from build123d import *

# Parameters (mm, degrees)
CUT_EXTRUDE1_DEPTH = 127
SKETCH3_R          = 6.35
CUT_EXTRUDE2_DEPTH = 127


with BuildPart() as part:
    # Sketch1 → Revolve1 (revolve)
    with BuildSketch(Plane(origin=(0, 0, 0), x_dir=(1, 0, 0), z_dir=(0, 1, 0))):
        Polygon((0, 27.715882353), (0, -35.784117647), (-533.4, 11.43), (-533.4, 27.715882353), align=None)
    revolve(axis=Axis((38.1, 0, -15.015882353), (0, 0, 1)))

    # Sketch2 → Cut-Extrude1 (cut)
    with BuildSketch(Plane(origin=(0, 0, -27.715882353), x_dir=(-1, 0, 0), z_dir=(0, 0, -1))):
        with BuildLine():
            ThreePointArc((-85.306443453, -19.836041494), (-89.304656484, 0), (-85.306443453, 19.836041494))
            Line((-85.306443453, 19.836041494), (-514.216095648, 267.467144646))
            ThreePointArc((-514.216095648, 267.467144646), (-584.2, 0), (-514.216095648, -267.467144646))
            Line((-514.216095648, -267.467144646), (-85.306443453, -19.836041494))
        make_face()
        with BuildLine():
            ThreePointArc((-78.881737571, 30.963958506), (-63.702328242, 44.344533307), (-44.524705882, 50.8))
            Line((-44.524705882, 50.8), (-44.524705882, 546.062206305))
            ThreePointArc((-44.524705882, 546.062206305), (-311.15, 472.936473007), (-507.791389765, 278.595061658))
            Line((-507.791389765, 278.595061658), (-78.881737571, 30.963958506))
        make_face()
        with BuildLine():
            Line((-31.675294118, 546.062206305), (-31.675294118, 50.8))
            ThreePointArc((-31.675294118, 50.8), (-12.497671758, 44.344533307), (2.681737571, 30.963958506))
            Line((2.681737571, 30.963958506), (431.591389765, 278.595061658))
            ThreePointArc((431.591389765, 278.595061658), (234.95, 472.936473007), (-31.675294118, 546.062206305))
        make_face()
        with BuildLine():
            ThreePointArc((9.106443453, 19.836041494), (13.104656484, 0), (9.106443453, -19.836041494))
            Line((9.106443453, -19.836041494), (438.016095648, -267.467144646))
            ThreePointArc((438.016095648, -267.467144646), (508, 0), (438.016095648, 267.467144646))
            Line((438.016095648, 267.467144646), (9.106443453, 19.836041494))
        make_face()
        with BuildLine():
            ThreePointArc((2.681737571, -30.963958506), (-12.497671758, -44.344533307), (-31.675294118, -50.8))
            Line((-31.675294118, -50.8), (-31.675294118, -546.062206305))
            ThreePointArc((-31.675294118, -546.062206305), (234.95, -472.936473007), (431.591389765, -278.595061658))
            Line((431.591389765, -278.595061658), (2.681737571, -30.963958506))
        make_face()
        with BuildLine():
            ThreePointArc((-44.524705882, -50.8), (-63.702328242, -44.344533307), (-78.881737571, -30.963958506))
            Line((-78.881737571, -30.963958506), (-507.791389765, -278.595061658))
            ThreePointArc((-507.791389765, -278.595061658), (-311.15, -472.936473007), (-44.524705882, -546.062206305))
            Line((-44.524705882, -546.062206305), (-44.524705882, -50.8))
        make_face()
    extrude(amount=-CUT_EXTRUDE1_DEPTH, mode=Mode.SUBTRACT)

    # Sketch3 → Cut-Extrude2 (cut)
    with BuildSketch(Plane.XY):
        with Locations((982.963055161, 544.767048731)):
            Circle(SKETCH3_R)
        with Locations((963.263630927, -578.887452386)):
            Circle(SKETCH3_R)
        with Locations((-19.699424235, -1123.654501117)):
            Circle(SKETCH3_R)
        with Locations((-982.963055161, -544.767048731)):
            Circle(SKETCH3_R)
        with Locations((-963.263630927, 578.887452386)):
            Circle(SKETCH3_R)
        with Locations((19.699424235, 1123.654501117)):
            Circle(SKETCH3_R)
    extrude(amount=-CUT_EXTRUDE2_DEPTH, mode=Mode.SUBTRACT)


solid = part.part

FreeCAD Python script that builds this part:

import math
import FreeCAD as App
import Part
import Sketcher

V = App.Vector
Q = App.Units.Quantity


def add_polygon(sketch, points):
    """Adds a closed chain of lines whose ends are joined by coincident constraints."""
    first, n = sketch.GeometryCount, len(points)
    for a, b in zip(points, points[1:] + points[:1]):
        sketch.addGeometry(Part.LineSegment(App.Vector(*a, 0), App.Vector(*b, 0)), False)
    for i in range(n):
        sketch.addConstraint(Sketcher.Constraint("Coincident", first + i, 2, first + (i + 1) % n, 1))

doc = App.newDocument("Part")
body = doc.addObject("PartDesign::Body", "Body")

sketch1 = body.newObject("Sketcher::SketchObject", "Sketch")
sketch1.AttachmentSupport = (doc.getObject("XZ_Plane"), [""])
sketch1.MapMode = "FlatFace"
add_polygon(sketch1, [(0, 36), (0, -28), (-533, -28), (-533, -11)])
sketch1.addGeometry(Part.LineSegment(V(38, -28, 0), V(38, 36, 0)), True)
sketch1.addConstraint([
    Sketcher.Constraint("Vertical", 0),
    Sketcher.Constraint("Horizontal", 1),
    Sketcher.Constraint("Vertical", 2),
    Sketcher.Constraint("Vertical", 4),
    Sketcher.Constraint("PointOnObject", 0, 2, -2),
    Sketcher.Constraint("Horizontal", 1, 2, 4, 1),
    Sketcher.Constraint("Horizontal", 3, 2, 4, 2),
    Sketcher.Constraint("DistanceX", 1, 2, 1, 1, Q("21 in")),
    Sketcher.Constraint("DistanceY", 0, 2, 0, 1, Q("2.5 in")),
    Sketcher.Constraint("DistanceX", -1, 1, 4, 1, Q("1.5 in")),
    Sketcher.Constraint("DistanceY", 2, 2, -1, 1, Q("0.45 in")),
    Sketcher.Constraint("Distance", 3, 535.485511),
])
revolution = body.newObject("PartDesign::Revolution", "Revolution")
revolution.Profile = sketch1
revolution.ReferenceAxis = (sketch1, ["Axis0"])
revolution.Angle = 360

sketch2 = body.newObject("Sketcher::SketchObject", "Sketch001")
sketch2.AttachmentSupport = (doc.getObject("XY_Plane"), [""])
sketch2.MapMode = "FlatFace"
sketch2.AttachmentOffset = App.Placement(V(0, 0, -27.715882), App.Rotation())
sketch2.addGeometry([
    Part.ArcOfCircle(Part.Circle(V(38, 0, 0), V(0, 0, 1), 51), math.radians(-23), math.radians(23)),
    Part.LineSegment(V(85, 20, 0), V(514, 267, 0)),
    Part.ArcOfCircle(Part.Circle(V(38, 0, 0), V(0, 0, 1), 546), math.radians(-29), math.radians(29)),
    Part.LineSegment(V(514, -267, 0), V(85, -20, 0)),
    Part.ArcOfCircle(Part.Circle(V(38, 0, 0), V(0, 0, 1), 51), math.radians(37), math.radians(83)),
    Part.LineSegment(V(45, 51, 0), V(45, 546, 0)),
    Part.ArcOfCircle(Part.Circle(V(38, 0, 0), V(0, 0, 1), 546), math.radians(31), math.radians(89)),
    Part.LineSegment(V(508, 279, 0), V(79, 31, 0)),
    Part.LineSegment(V(32, 546, 0), V(32, 51, 0)),
    Part.ArcOfCircle(Part.Circle(V(38, 0, 0), V(0, 0, 1), 51), math.radians(97), math.radians(143)),
    Part.LineSegment(V(-3, 31, 0), V(-432, 279, 0)),
    Part.ArcOfCircle(Part.Circle(V(38, 0, 0), V(0, 0, 1), 546), math.radians(91), math.radians(149)),
    Part.ArcOfCircle(Part.Circle(V(38, 0, 0), V(0, 0, 1), 51), math.radians(157), math.radians(203)),
    Part.LineSegment(V(-9, -20, 0), V(-438, -267, 0)),
    Part.ArcOfCircle(Part.Circle(V(38, 0, 0), V(0, 0, 1), 546), math.radians(151), math.radians(209)),
    Part.LineSegment(V(-438, 267, 0), V(-9, 20, 0)),
    Part.ArcOfCircle(Part.Circle(V(38, 0, 0), V(0, 0, 1), 51), math.radians(-143), math.radians(-97)),
    Part.LineSegment(V(32, -51, 0), V(32, -546, 0)),
    Part.ArcOfCircle(Part.Circle(V(38, 0, 0), V(0, 0, 1), 546), math.radians(-149), math.radians(-91)),
    Part.LineSegment(V(-432, -279, 0), V(-3, -31, 0)),
    Part.ArcOfCircle(Part.Circle(V(38, 0, 0), V(0, 0, 1), 51), math.radians(-83), math.radians(-37)),
    Part.LineSegment(V(79, -31, 0), V(508, -279, 0)),
    Part.ArcOfCircle(Part.Circle(V(38, 0, 0), V(0, 0, 1), 546), math.radians(-89), math.radians(-31)),
    Part.LineSegment(V(45, -546, 0), V(45, -51, 0)),
], False)
sketch2.addConstraint([
    Sketcher.Constraint("Coincident", 0, 2, 1, 1),
    Sketcher.Constraint("Coincident", 1, 2, 2, 2),
    Sketcher.Constraint("Coincident", 2, 1, 3, 1),
    Sketcher.Constraint("Coincident", 3, 2, 0, 1),
    Sketcher.Constraint("Coincident", 4, 2, 5, 1),
    Sketcher.Constraint("Coincident", 5, 2, 6, 2),
    Sketcher.Constraint("Coincident", 6, 1, 7, 1),
    Sketcher.Constraint("Coincident", 7, 2, 4, 1),
    Sketcher.Constraint("Coincident", 8, 2, 9, 1),
    Sketcher.Constraint("Coincident", 9, 2, 10, 1),
    Sketcher.Constraint("Coincident", 10, 2, 11, 2),
    Sketcher.Constraint("Coincident", 11, 1, 8, 1),
    Sketcher.Constraint("Coincident", 12, 2, 13, 1),
    Sketcher.Constraint("Coincident", 13, 2, 14, 2),
    Sketcher.Constraint("Coincident", 14, 1, 15, 1),
    Sketcher.Constraint("Coincident", 15, 2, 12, 1),
    Sketcher.Constraint("Coincident", 16, 2, 17, 1),
    Sketcher.Constraint("Coincident", 17, 2, 18, 2),
    Sketcher.Constraint("Coincident", 18, 1, 19, 1),
    Sketcher.Constraint("Coincident", 19, 2, 16, 1),
    Sketcher.Constraint("Coincident", 20, 2, 21, 1),
    Sketcher.Constraint("Coincident", 21, 2, 22, 2),
    Sketcher.Constraint("Coincident", 22, 1, 23, 1),
    Sketcher.Constraint("Coincident", 23, 2, 20, 1),
    Sketcher.Constraint("Vertical", 5),
    Sketcher.Constraint("Vertical", 8),
    Sketcher.Constraint("Vertical", 17),
    Sketcher.Constraint("Vertical", 23),
    Sketcher.Constraint("Coincident", 2, 3, 0, 3),
    Sketcher.Constraint("Coincident", 4, 3, 0, 3),
    Sketcher.Constraint("Coincident", 6, 3, 0, 3),
    Sketcher.Constraint("Coincident", 9, 3, 0, 3),
    Sketcher.Constraint("Coincident", 11, 3, 0, 3),
    Sketcher.Constraint("Coincident", 12, 3, 0, 3),
    Sketcher.Constraint("Coincident", 14, 3, 0, 3),
    Sketcher.Constraint("Coincident", 16, 3, 0, 3),
    Sketcher.Constraint("Coincident", 18, 3, 0, 3),
    Sketcher.Constraint("Coincident", 20, 3, 0, 3),
    Sketcher.Constraint("Coincident", 22, 3, 0, 3),
    Sketcher.Constraint("Equal", 0, 4),
    Sketcher.Constraint("Equal", 2, 6),
    Sketcher.Constraint("Equal", 4, 9),
    Sketcher.Constraint("Equal", 6, 11),
    Sketcher.Constraint("Equal", 9, 12),
    Sketcher.Constraint("Equal", 11, 14),
    Sketcher.Constraint("Equal", 12, 16),
    Sketcher.Constraint("Equal", 14, 18),
    Sketcher.Constraint("Equal", 16, 20),
    Sketcher.Constraint("Equal", 18, 22),
    Sketcher.Constraint("Symmetric", 0, 2, 3, 2, -1),
    Sketcher.Constraint("Parallel", 1, 7),
    Sketcher.Constraint("Parallel", 3, 10),
    Sketcher.Constraint("Parallel", 7, 13),
    Sketcher.Constraint("Parallel", 10, 15),
    Sketcher.Constraint("Parallel", 13, 19),
    Sketcher.Constraint("Parallel", 15, 21),
    Sketcher.Constraint("Horizontal", 4, 2, 8, 2),
    Sketcher.Constraint("Horizontal", 7, 2, 9, 2),
    Sketcher.Constraint("Horizontal", 3, 2, 12, 2),
    Sketcher.Constraint("Horizontal", 0, 2, 15, 2),
    Sketcher.Constraint("Horizontal", 19, 2, 20, 2),
    Sketcher.Constraint("Horizontal", 16, 2, 23, 2),
    Sketcher.Constraint("Vertical", 9, 2, 19, 2),
    Sketcher.Constraint("Equal", 8, 17),
    Sketcher.Constraint("Equal", 1, 3),
    Sketcher.Constraint("Equal", 3, 7),
    Sketcher.Constraint("Radius", 2, Q("21.5 in")),
    Sketcher.Constraint("DistanceY", -1, 1, 4, 2, Q("2 in")),
    Sketcher.Constraint("Angle", 1, Q("30 deg")),
    Sketcher.Constraint("DistanceX", -1, 1, 0, 3, Q("1.5 in")),
    Sketcher.Constraint("Radius", 0, 51.204656),
    Sketcher.Constraint("DistanceY", -1, 1, 0, 2, 19.836041),
])
pocket1 = body.newObject("PartDesign::Pocket", "Pocket")
pocket1.Profile = sketch2
pocket1.Length = Q("5 in")
pocket1.Reversed = True

sketch3 = body.newObject("Sketcher::SketchObject", "Sketch002")
sketch3.AttachmentSupport = (doc.getObject("XY_Plane"), [""])
sketch3.MapMode = "FlatFace"
sketch3.addGeometry([
    Part.Circle(V(983, 545, 0), V(0, 0, 1), 6),
    Part.Circle(V(963, -579, 0), V(0, 0, 1), 6),
    Part.Circle(V(-20, -1124, 0), V(0, 0, 1), 6),
    Part.Circle(V(-983, -545, 0), V(0, 0, 1), 6),
    Part.Circle(V(-963, 579, 0), V(0, 0, 1), 6),
    Part.Circle(V(20, 1124, 0), V(0, 0, 1), 6),
], False)
sketch3.addConstraint([
    Sketcher.Constraint("Equal", 0, 1),
    Sketcher.Constraint("Equal", 1, 2),
    Sketcher.Constraint("Equal", 2, 3),
    Sketcher.Constraint("Equal", 3, 4),
    Sketcher.Constraint("Equal", 4, 5),
    Sketcher.Constraint("Symmetric", 0, 3, 3, 3, -1, 1),
    Sketcher.Constraint("Symmetric", 1, 3, 4, 3, -1, 1),
    Sketcher.Constraint("Symmetric", 2, 3, 5, 3, -1, 1),
    Sketcher.Constraint("Diameter", 0, Q("0.5 in")),
    Sketcher.Constraint("DistanceY", 2, 3, -1, 1, 1123.654501),
    Sketcher.Constraint("DistanceY", 1, 3, 0, 3, 1123.654501),
    Sketcher.Constraint("DistanceY", -1, 1, 0, 3, 544.767049),
    Sketcher.Constraint("DistanceX", -1, 1, 1, 3, 963.263631),
    Sketcher.Constraint("DistanceX", 2, 3, 0, 3, 1002.662479),
    Sketcher.Constraint("DistanceX", 3, 3, 2, 3, 963.263631),
])
pocket2 = body.newObject("PartDesign::Pocket", "Pocket001")
pocket2.Profile = sketch3
pocket2.Length = Q("5 in")

doc.recompute()
